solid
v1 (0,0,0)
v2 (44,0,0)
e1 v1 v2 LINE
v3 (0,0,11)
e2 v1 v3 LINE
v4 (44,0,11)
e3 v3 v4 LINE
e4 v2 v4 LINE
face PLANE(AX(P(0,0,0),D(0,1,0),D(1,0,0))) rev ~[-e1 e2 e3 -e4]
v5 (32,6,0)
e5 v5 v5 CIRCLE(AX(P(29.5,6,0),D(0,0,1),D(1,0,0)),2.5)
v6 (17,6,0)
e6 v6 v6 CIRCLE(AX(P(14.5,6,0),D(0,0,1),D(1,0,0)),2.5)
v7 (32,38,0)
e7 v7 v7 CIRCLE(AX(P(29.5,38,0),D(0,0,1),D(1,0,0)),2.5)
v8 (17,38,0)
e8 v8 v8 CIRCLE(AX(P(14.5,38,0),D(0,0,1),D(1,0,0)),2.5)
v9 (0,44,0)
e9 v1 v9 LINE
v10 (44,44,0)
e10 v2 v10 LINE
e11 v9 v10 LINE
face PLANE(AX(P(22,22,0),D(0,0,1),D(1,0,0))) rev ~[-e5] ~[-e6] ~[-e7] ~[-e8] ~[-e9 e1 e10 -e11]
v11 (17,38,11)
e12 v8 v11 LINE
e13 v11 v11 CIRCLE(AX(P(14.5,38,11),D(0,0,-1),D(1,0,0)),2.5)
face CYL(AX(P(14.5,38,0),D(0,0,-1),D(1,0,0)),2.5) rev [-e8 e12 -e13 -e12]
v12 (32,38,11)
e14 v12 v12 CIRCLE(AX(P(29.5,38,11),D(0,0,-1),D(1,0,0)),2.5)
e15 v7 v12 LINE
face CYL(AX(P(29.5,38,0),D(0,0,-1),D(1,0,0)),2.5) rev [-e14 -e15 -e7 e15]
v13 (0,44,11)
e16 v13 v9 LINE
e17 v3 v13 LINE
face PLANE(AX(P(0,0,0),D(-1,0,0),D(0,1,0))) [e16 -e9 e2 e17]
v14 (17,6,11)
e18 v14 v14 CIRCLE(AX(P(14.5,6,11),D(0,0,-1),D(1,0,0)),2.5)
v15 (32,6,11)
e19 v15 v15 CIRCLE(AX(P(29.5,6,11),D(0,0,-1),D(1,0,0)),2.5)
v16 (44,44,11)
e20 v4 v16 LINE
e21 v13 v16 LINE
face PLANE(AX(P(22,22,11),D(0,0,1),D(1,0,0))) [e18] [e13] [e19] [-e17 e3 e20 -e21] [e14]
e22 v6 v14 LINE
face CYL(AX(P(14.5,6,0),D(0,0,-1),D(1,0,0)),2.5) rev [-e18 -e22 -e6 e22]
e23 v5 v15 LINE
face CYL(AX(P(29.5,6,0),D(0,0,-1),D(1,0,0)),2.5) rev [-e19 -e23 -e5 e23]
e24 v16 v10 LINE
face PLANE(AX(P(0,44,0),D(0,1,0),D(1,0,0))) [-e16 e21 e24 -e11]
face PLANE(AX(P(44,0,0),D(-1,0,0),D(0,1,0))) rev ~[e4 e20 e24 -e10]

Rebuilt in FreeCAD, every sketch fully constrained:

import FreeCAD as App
import Part
import Sketcher

doc = App.newDocument("Part")
params = doc.addObject("Spreadsheet::Sheet", "Params")
for row, (alias, value) in enumerate([
    ("sketch1_diameter", "5 mm"),
    ("pad1_length", "10 mm"),
    ("sketch2_diameter", "5 mm"),
    ("pad2_length", "10 mm"),
    ("sketch3_diameter", "5 mm"),
    ("pad3_length", "10 mm"),
    ("sketch4_diameter", "5 mm"),
    ("pad4_length", "10 mm"),
    ("sketch5_width", "44 mm"),
    ("pad5_length", "6 mm"),
    ("sketch6_diameter", "5 mm"),
    ("pad6_length", "10 mm"),
    ("sketch7_diameter", "5 mm"),
    ("pad7_length", "10 mm"),
    ("sketch8_diameter", "5 mm"),
    ("pad8_length", "10 mm"),
    ("sketch9_diameter", "5 mm"),
    ("pad9_length", "10 mm"),
    ("sketch10_width", "44 mm"),
    ("pad10_length", "6 mm"),
], start=1):
    params.set(f"A{row}", alias)
    params.set(f"B{row}", "=" + value)
    params.setAlias(f"B{row}", alias)

body = doc.addObject("PartDesign::Body", "Body")

sketch1 = body.newObject("Sketcher::SketchObject", "Sketch")
sketch1.AttachmentSupport = (doc.getObject("XY_Plane"), [""])
sketch1.MapMode = "FlatFace"
sketch1.addGeometry(Part.Circle(App.Vector(14.5, 38, 0), App.Vector(0, 0, 1), 2.5), False)
sketch1.addConstraint(Sketcher.Constraint("Diameter", 0, 5.0))
sketch1.addConstraint(Sketcher.Constraint("DistanceY", -1, 1, 0, 3, 38.0))
sketch1.addConstraint(Sketcher.Constraint("DistanceX", -1, 1, 0, 3, 14.5))
sketch1.setExpression("Constraints[0]", "Params.sketch1_diameter")
pad1 = body.newObject("PartDesign::Pad", "Pad")
pad1.Profile = sketch1
pad1.setExpression("Length", "Params.pad1_length")
body2 = doc.addObject("PartDesign::Body", "Body001")

sketch2 = body2.newObject("Sketcher::SketchObject", "Sketch001")
sketch2.AttachmentSupport = (doc.getObject("XY_Plane001"), [""])
sketch2.MapMode = "FlatFace"
sketch2.addGeometry(Part.Circle(App.Vector(29.5, 38, 0), App.Vector(0, 0, 1), 2.5), False)
sketch2.addConstraint(Sketcher.Constraint("Diameter", 0, 5.0))
sketch2.addConstraint(Sketcher.Constraint("DistanceY", -1, 1, 0, 3, 38.0))
sketch2.addConstraint(Sketcher.Constraint("DistanceX", -1, 1, 0, 3, 29.5))
sketch2.setExpression("Constraints[0]", "Params.sketch2_diameter")
pad2 = body2.newObject("PartDesign::Pad", "Pad001")
pad2.Profile = sketch2
pad2.setExpression("Length", "Params.pad2_length")
body3 = doc.addObject("PartDesign::Body", "Body002")

sketch3 = body3.newObject("Sketcher::SketchObject", "Sketch002")
sketch3.AttachmentSupport = (doc.getObject("XY_Plane002"), [""])
sketch3.MapMode = "FlatFace"
sketch3.addGeometry(Part.Circle(App.Vector(29.5, 6, 0), App.Vector(0, 0, 1), 2.5), False)
sketch3.addConstraint(Sketcher.Constraint("Diameter", 0, 5.0))
sketch3.addConstraint(Sketcher.Constraint("DistanceY", -1, 1, 0, 3, 6.0))
sketch3.addConstraint(Sketcher.Constraint("DistanceX", -1, 1, 0, 3, 29.5))
sketch3.setExpression("Constraints[0]", "Params.sketch3_diameter")
pad3 = body3.newObject("PartDesign::Pad", "Pad002")
pad3.Profile = sketch3
pad3.setExpression("Length", "Params.pad3_length")
body4 = doc.addObject("PartDesign::Body", "Body003")

sketch4 = body4.newObject("Sketcher::SketchObject", "Sketch003")
sketch4.AttachmentSupport = (doc.getObject("XY_Plane003"), [""])
sketch4.MapMode = "FlatFace"
sketch4.addGeometry(Part.Circle(App.Vector(14.5, 6, 0), App.Vector(0, 0, 1), 2.5), False)
sketch4.addConstraint(Sketcher.Constraint("Diameter", 0, 5.0))
sketch4.addConstraint(Sketcher.Constraint("DistanceY", -1, 1, 0, 3, 6.0))
sketch4.addConstraint(Sketcher.Constraint("DistanceX", -1, 1, 0, 3, 14.5))
sketch4.setExpression("Constraints[0]", "Params.sketch4_diameter")
pad4 = body4.newObject("PartDesign::Pad", "Pad003")
pad4.Profile = sketch4
pad4.setExpression("Length", "Params.pad4_length")
body5 = doc.addObject("PartDesign::Body", "Body004")

sketch5 = body5.newObject("Sketcher::SketchObject", "Sketch004")
sketch5.AttachmentSupport = (doc.getObject("XY_Plane004"), [""])
sketch5.MapMode = "FlatFace"
sketch5.addGeometry(Part.LineSegment(App.Vector(0, 44, 0), App.Vector(0, 0, 0)), False)
sketch5.addGeometry(Part.LineSegment(App.Vector(0, 0, 0), App.Vector(44, 0, 0)), False)
sketch5.addGeometry(Part.LineSegment(App.Vector(44, 0, 0), App.Vector(44, 44, 0)), False)
sketch5.addGeometry(Part.LineSegment(App.Vector(44, 44, 0), App.Vector(0, 44, 0)), False)
sketch5.addConstraint(Sketcher.Constraint("Coincident", 0, 2, 1, 1))
sketch5.addConstraint(Sketcher.Constraint("Coincident", 1, 2, 2, 1))
sketch5.addConstraint(Sketcher.Constraint("Coincident", 2, 2, 3, 1))
sketch5.addConstraint(Sketcher.Constraint("Coincident", 3, 2, 0, 1))
sketch5.addConstraint(Sketcher.Constraint("Vertical", 0))
sketch5.addConstraint(Sketcher.Constraint("Horizontal", 1))
sketch5.addConstraint(Sketcher.Constraint("Vertical", 2))
sketch5.addConstraint(Sketcher.Constraint("Horizontal", 3))
sketch5.addConstraint(Sketcher.Constraint("Coincident", 0, 2, -1, 1))
sketch5.addConstraint(Sketcher.Constraint("Equal", 3, 0))
sketch5.addConstraint(Sketcher.Constraint("DistanceX", 1, 1, 1, 2, 44.0))
sketch5.setExpression("Constraints[10]", "Params.sketch5_width")
pad5 = body5.newObject("PartDesign::Pad", "Pad004")
pad5.Profile = sketch5
pad5.setExpression("Length", "Params.pad5_length")
doc.recompute()

boolean = body5.newObject("PartDesign::Boolean", "Boolean")
boolean.Type = "Cut"
boolean.addObjects([body4])
doc.recompute()

boolean2 = body5.newObject("PartDesign::Boolean", "Boolean001")
boolean2.Type = "Cut"
boolean2.addObjects([body3])
doc.recompute()

boolean3 = body5.newObject("PartDesign::Boolean", "Boolean002")
boolean3.Type = "Cut"
boolean3.addObjects([body2])
doc.recompute()

boolean4 = body5.newObject("PartDesign::Boolean", "Boolean003")
boolean4.Type = "Cut"
boolean4.addObjects([body])
body6 = doc.addObject("PartDesign::Body", "Body005")
doc.recompute()

body5.Placement = App.Placement(App.Vector(0, 0, 5), App.Rotation(App.Vector(0, 0, 1), 0))
boolean5 = body6.newObject("PartDesign::Boolean", "Boolean004")
boolean5.Type = "Fuse"
boolean5.addObjects([body5])
body7 = doc.addObject("PartDesign::Body", "Body006")

sketch6 = body7.newObject("Sketcher::SketchObject", "Sketch005")
sketch6.AttachmentSupport = (doc.getObject("XY_Plane006"), [""])
sketch6.MapMode = "FlatFace"
sketch6.addGeometry(Part.Circle(App.Vector(14.5, 38, 0), App.Vector(0, 0, 1), 2.5), False)
sketch6.addConstraint(Sketcher.Constraint("Diameter", 0, 5.0))
sketch6.addConstraint(Sketcher.Constraint("DistanceY", -1, 1, 0, 3, 38.0))
sketch6.addConstraint(Sketcher.Constraint("DistanceX", -1, 1, 0, 3, 14.5))
sketch6.setExpression("Constraints[0]", "Params.sketch6_diameter")
pad6 = body7.newObject("PartDesign::Pad", "Pad005")
pad6.Profile = sketch6
pad6.setExpression("Length", "Params.pad6_length")
body8 = doc.addObject("PartDesign::Body", "Body007")

sketch7 = body8.newObject("Sketcher::SketchObject", "Sketch006")
sketch7.AttachmentSupport = (doc.getObject("XY_Plane007"), [""])
sketch7.MapMode = "FlatFace"
sketch7.addGeometry(Part.Circle(App.Vector(29.5, 38, 0), App.Vector(0, 0, 1), 2.5), False)
sketch7.addConstraint(Sketcher.Constraint("Diameter", 0, 5.0))
sketch7.addConstraint(Sketcher.Constraint("DistanceY", -1, 1, 0, 3, 38.0))
sketch7.addConstraint(Sketcher.Constraint("DistanceX", -1, 1, 0, 3, 29.5))
sketch7.setExpression("Constraints[0]", "Params.sketch7_diameter")
pad7 = body8.newObject("PartDesign::Pad", "Pad006")
pad7.Profile = sketch7
pad7.setExpression("Length", "Params.pad7_length")
body9 = doc.addObject("PartDesign::Body", "Body008")

sketch8 = body9.newObject("Sketcher::SketchObject", "Sketch007")
sketch8.AttachmentSupport = (doc.getObject("XY_Plane008"), [""])
sketch8.MapMode = "FlatFace"
sketch8.addGeometry(Part.Circle(App.Vector(29.5, 6, 0), App.Vector(0, 0, 1), 2.5), False)
sketch8.addConstraint(Sketcher.Constraint("Diameter", 0, 5.0))
sketch8.addConstraint(Sketcher.Constraint("DistanceY", -1, 1, 0, 3, 6.0))
sketch8.addConstraint(Sketcher.Constraint("DistanceX", -1, 1, 0, 3, 29.5))
sketch8.setExpression("Constraints[0]", "Params.sketch8_diameter")
pad8 = body9.newObject("PartDesign::Pad", "Pad007")
pad8.Profile = sketch8
pad8.setExpression("Length", "Params.pad8_length")
body10 = doc.addObject("PartDesign::Body", "Body009")

sketch9 = body10.newObject("Sketcher::SketchObject", "Sketch008")
sketch9.AttachmentSupport = (doc.getObject("XY_Plane009"), [""])
sketch9.MapMode = "FlatFace"
sketch9.addGeometry(Part.Circle(App.Vector(14.5, 6, 0), App.Vector(0, 0, 1), 2.5), False)
sketch9.addConstraint(Sketcher.Constraint("Diameter", 0, 5.0))
sketch9.addConstraint(Sketcher.Constraint("DistanceY", -1, 1, 0, 3, 6.0))
sketch9.addConstraint(Sketcher.Constraint("DistanceX", -1, 1, 0, 3, 14.5))
sketch9.setExpression("Constraints[0]", "Params.sketch9_diameter")
pad9 = body10.newObject("PartDesign::Pad", "Pad008")
pad9.Profile = sketch9
pad9.setExpression("Length", "Params.pad9_length")
body11 = doc.addObject("PartDesign::Body", "Body010")

sketch10 = body11.newObject("Sketcher::SketchObject", "Sketch009")
sketch10.AttachmentSupport = (doc.getObject("XY_Plane010"), [""])
sketch10.MapMode = "FlatFace"
sketch10.addGeometry(Part.LineSegment(App.Vector(0, 44, 0), App.Vector(0, 0, 0)), False)
sketch10.addGeometry(Part.LineSegment(App.Vector(0, 0, 0), App.Vector(44, 0, 0)), False)
sketch10.addGeometry(Part.LineSegment(App.Vector(44, 0, 0), App.Vector(44, 44, 0)), False)
sketch10.addGeometry(Part.LineSegment(App.Vector(44, 44, 0), App.Vector(0, 44, 0)), False)
sketch10.addConstraint(Sketcher.Constraint("Coincident", 0, 2, 1, 1))
sketch10.addConstraint(Sketcher.Constraint("Coincident", 1, 2, 2, 1))
sketch10.addConstraint(Sketcher.Constraint("Coincident", 2, 2, 3, 1))
sketch10.addConstraint(Sketcher.Constraint("Coincident", 3, 2, 0, 1))
sketch10.addConstraint(Sketcher.Constraint("Vertical", 0))
sketch10.addConstraint(Sketcher.Constraint("Horizontal", 1))
sketch10.addConstraint(Sketcher.Constraint("Vertical", 2))
sketch10.addConstraint(Sketcher.Constraint("Horizontal", 3))
sketch10.addConstraint(Sketcher.Constraint("Coincident", 0, 2, -1, 1))
sketch10.addConstraint(Sketcher.Constraint("Equal", 3, 0))
sketch10.addConstraint(Sketcher.Constraint("DistanceX", 1, 1, 1, 2, 44.0))
sketch10.setExpression("Constraints[10]", "Params.sketch10_width")
pad10 = body11.newObject("PartDesign::Pad", "Pad009")
pad10.Profile = sketch10
pad10.setExpression("Length", "Params.pad10_length")
doc.recompute()

boolean6 = body11.newObject("PartDesign::Boolean", "Boolean005")
boolean6.Type = "Cut"
boolean6.addObjects([body10])
doc.recompute()

boolean7 = body11.newObject("PartDesign::Boolean", "Boolean006")
boolean7.Type = "Cut"
boolean7.addObjects([body9])
doc.recompute()

boolean8 = body11.newObject("PartDesign::Boolean", "Boolean007")
boolean8.Type = "Cut"
boolean8.addObjects([body8])
doc.recompute()

boolean9 = body11.newObject("PartDesign::Boolean", "Boolean008")
boolean9.Type = "Cut"
boolean9.addObjects([body7])
doc.recompute()

boolean10 = body11.newObject("PartDesign::Boolean", "Boolean009")
boolean10.Type = "Fuse"
boolean10.addObjects([body6])

doc.recompute()
